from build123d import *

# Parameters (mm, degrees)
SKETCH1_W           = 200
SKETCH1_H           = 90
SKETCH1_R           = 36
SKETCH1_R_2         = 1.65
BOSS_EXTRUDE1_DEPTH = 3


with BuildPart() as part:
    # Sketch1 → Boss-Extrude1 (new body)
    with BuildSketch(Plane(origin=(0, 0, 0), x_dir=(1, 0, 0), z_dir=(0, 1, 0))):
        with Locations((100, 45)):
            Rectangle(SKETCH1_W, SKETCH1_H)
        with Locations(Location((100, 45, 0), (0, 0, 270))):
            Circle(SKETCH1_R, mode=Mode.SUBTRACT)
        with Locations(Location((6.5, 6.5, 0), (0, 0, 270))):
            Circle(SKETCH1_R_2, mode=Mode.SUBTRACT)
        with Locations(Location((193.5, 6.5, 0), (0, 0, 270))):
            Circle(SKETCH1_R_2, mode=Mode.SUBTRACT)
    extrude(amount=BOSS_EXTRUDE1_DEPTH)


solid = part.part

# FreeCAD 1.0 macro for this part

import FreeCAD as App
import Part
import Sketcher
Q = App.Units.Quantity

doc = App.newDocument("Part")
body = doc.addObject("PartDesign::Body", "Body")

sketch1 = doc.addObject("Sketcher::SketchObject", "Sketch")
body.addObject(sketch1)
sketch1.AttachmentSupport = (doc.XZ_Plane, [""])
sketch1.MapMode = "FlatFace"
sketch1.addGeometry(Part.LineSegment(App.Vector(0, -90, 0), App.Vector(0, 0, 0)), False)
sketch1.addGeometry(Part.LineSegment(App.Vector(0, 0, 0), App.Vector(200, 0, 0)), False)
sketch1.addGeometry(Part.LineSegment(App.Vector(200, 0, 0), App.Vector(200, -90, 0)), False)
sketch1.addGeometry(Part.LineSegment(App.Vector(200, -90, 0), App.Vector(0, -90, 0)), False)
sketch1.addGeometry(Part.Circle(App.Vector(6.5, -6.5, 0), App.Vector(0, 0, 1), 1.6), False)
sketch1.addGeometry(Part.Circle(App.Vector(193.5, -6.5, 0), App.Vector(0, 0, 1), 1.6), False)
sketch1.addGeometry(Part.Circle(App.Vector(100, -45, 0), App.Vector(0, 0, 1), 36), False)
sketch1.addConstraint(Sketcher.Constraint("Coincident", 0, 2, 1, 1))
sketch1.addConstraint(Sketcher.Constraint("Coincident", 1, 2, 2, 1))
sketch1.addConstraint(Sketcher.Constraint("Coincident", 2, 2, 3, 1))
sketch1.addConstraint(Sketcher.Constraint("Coincident", 3, 2, 0, 1))
sketch1.addConstraint(Sketcher.Constraint("Vertical", 0))
sketch1.addConstraint(Sketcher.Constraint("Horizontal", 1))
sketch1.addConstraint(Sketcher.Constraint("Vertical", 2))
sketch1.addConstraint(Sketcher.Constraint("Horizontal", 3))
sketch1.addConstraint(Sketcher.Constraint("Coincident", 0, 2, -1, 1))
sketch1.addConstraint(Sketcher.Constraint("Equal", 4, 5))
sketch1.addConstraint(Sketcher.Constraint("Horizontal", 4, 3, 5, 3))
sketch1.addConstraint(Sketcher.Constraint("Diameter", 6, Q("72 mm")))
sketch1.addConstraint(Sketcher.Constraint("Diameter", 4, Q("3.3 mm")))
sketch1.addConstraint(Sketcher.Constraint("DistanceX", 1, 1, 1, 2, Q("200 mm")))
sketch1.addConstraint(Sketcher.Constraint("DistanceY", 0, 1, 0, 2, Q("90 mm")))
sketch1.addConstraint(Sketcher.Constraint("DistanceX", -1, 1, 6, 3, Q("100 mm")))
sketch1.addConstraint(Sketcher.Constraint("DistanceY", 6, 3, -1, 1, Q("45 mm")))
sketch1.addConstraint(Sketcher.Constraint("DistanceX", 4, 3, 5, 3, Q("187 mm")))
sketch1.addConstraint(Sketcher.Constraint("DistanceX", -1, 1, 4, 3, Q("6.5 mm")))
sketch1.addConstraint(Sketcher.Constraint("DistanceY", 4, 3, -1, 1, Q("6.5 mm")))
pad1 = doc.addObject("PartDesign::Pad", "Pad")
body.addObject(pad1)
pad1.Profile = sketch1
pad1.Length = 3
pad1.Reversed = True

doc.recompute()
